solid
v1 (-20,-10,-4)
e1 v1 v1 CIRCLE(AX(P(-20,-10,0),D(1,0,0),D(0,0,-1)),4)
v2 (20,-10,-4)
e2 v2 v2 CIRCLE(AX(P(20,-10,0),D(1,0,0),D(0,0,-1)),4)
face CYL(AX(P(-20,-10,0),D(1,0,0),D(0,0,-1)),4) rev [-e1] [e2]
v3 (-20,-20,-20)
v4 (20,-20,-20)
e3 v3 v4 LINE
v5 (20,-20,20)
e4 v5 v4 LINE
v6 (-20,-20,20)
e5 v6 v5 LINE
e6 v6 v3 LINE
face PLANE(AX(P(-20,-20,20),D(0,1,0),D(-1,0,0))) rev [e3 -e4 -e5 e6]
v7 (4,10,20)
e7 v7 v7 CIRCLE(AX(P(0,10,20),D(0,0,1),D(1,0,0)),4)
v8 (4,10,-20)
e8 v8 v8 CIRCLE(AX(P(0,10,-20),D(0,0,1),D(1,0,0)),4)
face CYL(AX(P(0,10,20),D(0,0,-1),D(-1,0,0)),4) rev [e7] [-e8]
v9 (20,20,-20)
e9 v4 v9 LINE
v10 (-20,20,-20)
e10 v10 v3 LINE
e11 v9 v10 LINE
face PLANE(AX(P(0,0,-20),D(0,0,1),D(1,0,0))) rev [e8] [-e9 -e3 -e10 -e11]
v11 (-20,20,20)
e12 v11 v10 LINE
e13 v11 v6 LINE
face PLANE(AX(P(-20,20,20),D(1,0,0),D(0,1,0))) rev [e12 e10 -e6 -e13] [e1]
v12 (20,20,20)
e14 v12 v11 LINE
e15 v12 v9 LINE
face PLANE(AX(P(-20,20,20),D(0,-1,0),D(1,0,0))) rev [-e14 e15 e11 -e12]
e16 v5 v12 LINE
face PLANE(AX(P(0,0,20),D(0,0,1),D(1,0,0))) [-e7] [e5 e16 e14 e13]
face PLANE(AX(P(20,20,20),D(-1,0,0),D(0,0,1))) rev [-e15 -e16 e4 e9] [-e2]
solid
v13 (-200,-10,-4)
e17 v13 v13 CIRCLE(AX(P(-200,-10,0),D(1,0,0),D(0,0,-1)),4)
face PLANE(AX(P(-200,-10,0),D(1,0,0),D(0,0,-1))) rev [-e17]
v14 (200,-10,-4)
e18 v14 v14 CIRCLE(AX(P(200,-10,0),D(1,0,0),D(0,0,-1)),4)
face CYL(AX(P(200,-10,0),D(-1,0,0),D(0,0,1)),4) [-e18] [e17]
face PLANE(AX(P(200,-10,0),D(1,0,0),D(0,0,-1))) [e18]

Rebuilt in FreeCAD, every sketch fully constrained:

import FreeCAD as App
import Part
import Sketcher

V = App.Vector

doc = App.newDocument("Part")
body = doc.addObject("PartDesign::Body", "Body")

sketch1 = doc.addObject("Sketcher::SketchObject", "Sketch")
body.addObject(sketch1)
sketch1.AttachmentSupport = (doc.XY_Plane, [""])
sketch1.MapMode = "FlatFace"
sketch1.addGeometry([
    Part.LineSegment(V(-20, 20, 0), V(-20, -20, 0)),
    Part.LineSegment(V(-20, -20, 0), V(20, -20, 0)),
    Part.LineSegment(V(20, -20, 0), V(20, 20, 0)),
    Part.LineSegment(V(20, 20, 0), V(-20, 20, 0)),
    Part.Circle(V(0, 10, 0), V(0, 0, 1), 4),
], False)
sketch1.addConstraint([
    Sketcher.Constraint("Coincident", 0, 2, 1, 1),
    Sketcher.Constraint("Coincident", 1, 2, 2, 1),
    Sketcher.Constraint("Coincident", 2, 2, 3, 1),
    Sketcher.Constraint("Coincident", 3, 2, 0, 1),
    Sketcher.Constraint("Vertical", 0),
    Sketcher.Constraint("Horizontal", 1),
    Sketcher.Constraint("Vertical", 2),
    Sketcher.Constraint("Horizontal", 3),
    Sketcher.Constraint("Symmetric", 0, 2, 2, 2, -1, 1),
    Sketcher.Constraint("PointOnObject", 4, 3, -2),
    Sketcher.Constraint("Equal", 3, 0),
    Sketcher.Constraint("Diameter", 4, 8.0),
    Sketcher.Constraint("DistanceX", 1, 1, 1, 2, 40.0),
    Sketcher.Constraint("DistanceY", -1, 1, 4, 3, 10.0),
])
pad1 = doc.addObject("PartDesign::Pad", "Pad")
body.addObject(pad1)
pad1.Profile = sketch1
pad1.Length = 40
pad1.Midplane = True

sketch2 = doc.addObject("Sketcher::SketchObject", "Sketch001")
body.addObject(sketch2)
sketch2.AttachmentSupport = (doc.YZ_Plane, [""])
sketch2.MapMode = "FlatFace"
sketch2.AttachmentOffset = App.Placement(V(0, 0, 20), App.Rotation())
sketch2.addGeometry(Part.Circle(V(-10, 0, 0), V(0, 0, 1), 4), False)
sketch2.addConstraint([
    Sketcher.Constraint("PointOnObject", 0, 3, -1),
    Sketcher.Constraint("Diameter", 0, 8.0),
    Sketcher.Constraint("DistanceX", 0, 3, -1, 1, 10.0),
])
pocket1 = doc.addObject("PartDesign::Pocket", "Pocket")
body.addObject(pocket1)
pocket1.Profile = sketch2
pocket1.Type = "ThroughAll"
body2 = doc.addObject("PartDesign::Body", "Body001")

sketch3 = doc.addObject("Sketcher::SketchObject", "Sketch002")
body2.addObject(sketch3)
sketch3.AttachmentSupport = (doc.getObject("YZ_Plane001"), [""])
sketch3.MapMode = "FlatFace"
sketch3.addGeometry(Part.Circle(V(-10, 0, 0), V(0, 0, 1), 4), False)
sketch3.addConstraint([
    Sketcher.Constraint("PointOnObject", 0, 3, -1),
    Sketcher.Constraint("Diameter", 0, 8.0),
    Sketcher.Constraint("DistanceX", 0, 3, -1, 1, 10.0),
])
pad2 = doc.addObject("PartDesign::Pad", "Pad001")
body2.addObject(pad2)
pad2.Profile = sketch3
pad2.Length = 400
pad2.Midplane = True

doc.recompute()
